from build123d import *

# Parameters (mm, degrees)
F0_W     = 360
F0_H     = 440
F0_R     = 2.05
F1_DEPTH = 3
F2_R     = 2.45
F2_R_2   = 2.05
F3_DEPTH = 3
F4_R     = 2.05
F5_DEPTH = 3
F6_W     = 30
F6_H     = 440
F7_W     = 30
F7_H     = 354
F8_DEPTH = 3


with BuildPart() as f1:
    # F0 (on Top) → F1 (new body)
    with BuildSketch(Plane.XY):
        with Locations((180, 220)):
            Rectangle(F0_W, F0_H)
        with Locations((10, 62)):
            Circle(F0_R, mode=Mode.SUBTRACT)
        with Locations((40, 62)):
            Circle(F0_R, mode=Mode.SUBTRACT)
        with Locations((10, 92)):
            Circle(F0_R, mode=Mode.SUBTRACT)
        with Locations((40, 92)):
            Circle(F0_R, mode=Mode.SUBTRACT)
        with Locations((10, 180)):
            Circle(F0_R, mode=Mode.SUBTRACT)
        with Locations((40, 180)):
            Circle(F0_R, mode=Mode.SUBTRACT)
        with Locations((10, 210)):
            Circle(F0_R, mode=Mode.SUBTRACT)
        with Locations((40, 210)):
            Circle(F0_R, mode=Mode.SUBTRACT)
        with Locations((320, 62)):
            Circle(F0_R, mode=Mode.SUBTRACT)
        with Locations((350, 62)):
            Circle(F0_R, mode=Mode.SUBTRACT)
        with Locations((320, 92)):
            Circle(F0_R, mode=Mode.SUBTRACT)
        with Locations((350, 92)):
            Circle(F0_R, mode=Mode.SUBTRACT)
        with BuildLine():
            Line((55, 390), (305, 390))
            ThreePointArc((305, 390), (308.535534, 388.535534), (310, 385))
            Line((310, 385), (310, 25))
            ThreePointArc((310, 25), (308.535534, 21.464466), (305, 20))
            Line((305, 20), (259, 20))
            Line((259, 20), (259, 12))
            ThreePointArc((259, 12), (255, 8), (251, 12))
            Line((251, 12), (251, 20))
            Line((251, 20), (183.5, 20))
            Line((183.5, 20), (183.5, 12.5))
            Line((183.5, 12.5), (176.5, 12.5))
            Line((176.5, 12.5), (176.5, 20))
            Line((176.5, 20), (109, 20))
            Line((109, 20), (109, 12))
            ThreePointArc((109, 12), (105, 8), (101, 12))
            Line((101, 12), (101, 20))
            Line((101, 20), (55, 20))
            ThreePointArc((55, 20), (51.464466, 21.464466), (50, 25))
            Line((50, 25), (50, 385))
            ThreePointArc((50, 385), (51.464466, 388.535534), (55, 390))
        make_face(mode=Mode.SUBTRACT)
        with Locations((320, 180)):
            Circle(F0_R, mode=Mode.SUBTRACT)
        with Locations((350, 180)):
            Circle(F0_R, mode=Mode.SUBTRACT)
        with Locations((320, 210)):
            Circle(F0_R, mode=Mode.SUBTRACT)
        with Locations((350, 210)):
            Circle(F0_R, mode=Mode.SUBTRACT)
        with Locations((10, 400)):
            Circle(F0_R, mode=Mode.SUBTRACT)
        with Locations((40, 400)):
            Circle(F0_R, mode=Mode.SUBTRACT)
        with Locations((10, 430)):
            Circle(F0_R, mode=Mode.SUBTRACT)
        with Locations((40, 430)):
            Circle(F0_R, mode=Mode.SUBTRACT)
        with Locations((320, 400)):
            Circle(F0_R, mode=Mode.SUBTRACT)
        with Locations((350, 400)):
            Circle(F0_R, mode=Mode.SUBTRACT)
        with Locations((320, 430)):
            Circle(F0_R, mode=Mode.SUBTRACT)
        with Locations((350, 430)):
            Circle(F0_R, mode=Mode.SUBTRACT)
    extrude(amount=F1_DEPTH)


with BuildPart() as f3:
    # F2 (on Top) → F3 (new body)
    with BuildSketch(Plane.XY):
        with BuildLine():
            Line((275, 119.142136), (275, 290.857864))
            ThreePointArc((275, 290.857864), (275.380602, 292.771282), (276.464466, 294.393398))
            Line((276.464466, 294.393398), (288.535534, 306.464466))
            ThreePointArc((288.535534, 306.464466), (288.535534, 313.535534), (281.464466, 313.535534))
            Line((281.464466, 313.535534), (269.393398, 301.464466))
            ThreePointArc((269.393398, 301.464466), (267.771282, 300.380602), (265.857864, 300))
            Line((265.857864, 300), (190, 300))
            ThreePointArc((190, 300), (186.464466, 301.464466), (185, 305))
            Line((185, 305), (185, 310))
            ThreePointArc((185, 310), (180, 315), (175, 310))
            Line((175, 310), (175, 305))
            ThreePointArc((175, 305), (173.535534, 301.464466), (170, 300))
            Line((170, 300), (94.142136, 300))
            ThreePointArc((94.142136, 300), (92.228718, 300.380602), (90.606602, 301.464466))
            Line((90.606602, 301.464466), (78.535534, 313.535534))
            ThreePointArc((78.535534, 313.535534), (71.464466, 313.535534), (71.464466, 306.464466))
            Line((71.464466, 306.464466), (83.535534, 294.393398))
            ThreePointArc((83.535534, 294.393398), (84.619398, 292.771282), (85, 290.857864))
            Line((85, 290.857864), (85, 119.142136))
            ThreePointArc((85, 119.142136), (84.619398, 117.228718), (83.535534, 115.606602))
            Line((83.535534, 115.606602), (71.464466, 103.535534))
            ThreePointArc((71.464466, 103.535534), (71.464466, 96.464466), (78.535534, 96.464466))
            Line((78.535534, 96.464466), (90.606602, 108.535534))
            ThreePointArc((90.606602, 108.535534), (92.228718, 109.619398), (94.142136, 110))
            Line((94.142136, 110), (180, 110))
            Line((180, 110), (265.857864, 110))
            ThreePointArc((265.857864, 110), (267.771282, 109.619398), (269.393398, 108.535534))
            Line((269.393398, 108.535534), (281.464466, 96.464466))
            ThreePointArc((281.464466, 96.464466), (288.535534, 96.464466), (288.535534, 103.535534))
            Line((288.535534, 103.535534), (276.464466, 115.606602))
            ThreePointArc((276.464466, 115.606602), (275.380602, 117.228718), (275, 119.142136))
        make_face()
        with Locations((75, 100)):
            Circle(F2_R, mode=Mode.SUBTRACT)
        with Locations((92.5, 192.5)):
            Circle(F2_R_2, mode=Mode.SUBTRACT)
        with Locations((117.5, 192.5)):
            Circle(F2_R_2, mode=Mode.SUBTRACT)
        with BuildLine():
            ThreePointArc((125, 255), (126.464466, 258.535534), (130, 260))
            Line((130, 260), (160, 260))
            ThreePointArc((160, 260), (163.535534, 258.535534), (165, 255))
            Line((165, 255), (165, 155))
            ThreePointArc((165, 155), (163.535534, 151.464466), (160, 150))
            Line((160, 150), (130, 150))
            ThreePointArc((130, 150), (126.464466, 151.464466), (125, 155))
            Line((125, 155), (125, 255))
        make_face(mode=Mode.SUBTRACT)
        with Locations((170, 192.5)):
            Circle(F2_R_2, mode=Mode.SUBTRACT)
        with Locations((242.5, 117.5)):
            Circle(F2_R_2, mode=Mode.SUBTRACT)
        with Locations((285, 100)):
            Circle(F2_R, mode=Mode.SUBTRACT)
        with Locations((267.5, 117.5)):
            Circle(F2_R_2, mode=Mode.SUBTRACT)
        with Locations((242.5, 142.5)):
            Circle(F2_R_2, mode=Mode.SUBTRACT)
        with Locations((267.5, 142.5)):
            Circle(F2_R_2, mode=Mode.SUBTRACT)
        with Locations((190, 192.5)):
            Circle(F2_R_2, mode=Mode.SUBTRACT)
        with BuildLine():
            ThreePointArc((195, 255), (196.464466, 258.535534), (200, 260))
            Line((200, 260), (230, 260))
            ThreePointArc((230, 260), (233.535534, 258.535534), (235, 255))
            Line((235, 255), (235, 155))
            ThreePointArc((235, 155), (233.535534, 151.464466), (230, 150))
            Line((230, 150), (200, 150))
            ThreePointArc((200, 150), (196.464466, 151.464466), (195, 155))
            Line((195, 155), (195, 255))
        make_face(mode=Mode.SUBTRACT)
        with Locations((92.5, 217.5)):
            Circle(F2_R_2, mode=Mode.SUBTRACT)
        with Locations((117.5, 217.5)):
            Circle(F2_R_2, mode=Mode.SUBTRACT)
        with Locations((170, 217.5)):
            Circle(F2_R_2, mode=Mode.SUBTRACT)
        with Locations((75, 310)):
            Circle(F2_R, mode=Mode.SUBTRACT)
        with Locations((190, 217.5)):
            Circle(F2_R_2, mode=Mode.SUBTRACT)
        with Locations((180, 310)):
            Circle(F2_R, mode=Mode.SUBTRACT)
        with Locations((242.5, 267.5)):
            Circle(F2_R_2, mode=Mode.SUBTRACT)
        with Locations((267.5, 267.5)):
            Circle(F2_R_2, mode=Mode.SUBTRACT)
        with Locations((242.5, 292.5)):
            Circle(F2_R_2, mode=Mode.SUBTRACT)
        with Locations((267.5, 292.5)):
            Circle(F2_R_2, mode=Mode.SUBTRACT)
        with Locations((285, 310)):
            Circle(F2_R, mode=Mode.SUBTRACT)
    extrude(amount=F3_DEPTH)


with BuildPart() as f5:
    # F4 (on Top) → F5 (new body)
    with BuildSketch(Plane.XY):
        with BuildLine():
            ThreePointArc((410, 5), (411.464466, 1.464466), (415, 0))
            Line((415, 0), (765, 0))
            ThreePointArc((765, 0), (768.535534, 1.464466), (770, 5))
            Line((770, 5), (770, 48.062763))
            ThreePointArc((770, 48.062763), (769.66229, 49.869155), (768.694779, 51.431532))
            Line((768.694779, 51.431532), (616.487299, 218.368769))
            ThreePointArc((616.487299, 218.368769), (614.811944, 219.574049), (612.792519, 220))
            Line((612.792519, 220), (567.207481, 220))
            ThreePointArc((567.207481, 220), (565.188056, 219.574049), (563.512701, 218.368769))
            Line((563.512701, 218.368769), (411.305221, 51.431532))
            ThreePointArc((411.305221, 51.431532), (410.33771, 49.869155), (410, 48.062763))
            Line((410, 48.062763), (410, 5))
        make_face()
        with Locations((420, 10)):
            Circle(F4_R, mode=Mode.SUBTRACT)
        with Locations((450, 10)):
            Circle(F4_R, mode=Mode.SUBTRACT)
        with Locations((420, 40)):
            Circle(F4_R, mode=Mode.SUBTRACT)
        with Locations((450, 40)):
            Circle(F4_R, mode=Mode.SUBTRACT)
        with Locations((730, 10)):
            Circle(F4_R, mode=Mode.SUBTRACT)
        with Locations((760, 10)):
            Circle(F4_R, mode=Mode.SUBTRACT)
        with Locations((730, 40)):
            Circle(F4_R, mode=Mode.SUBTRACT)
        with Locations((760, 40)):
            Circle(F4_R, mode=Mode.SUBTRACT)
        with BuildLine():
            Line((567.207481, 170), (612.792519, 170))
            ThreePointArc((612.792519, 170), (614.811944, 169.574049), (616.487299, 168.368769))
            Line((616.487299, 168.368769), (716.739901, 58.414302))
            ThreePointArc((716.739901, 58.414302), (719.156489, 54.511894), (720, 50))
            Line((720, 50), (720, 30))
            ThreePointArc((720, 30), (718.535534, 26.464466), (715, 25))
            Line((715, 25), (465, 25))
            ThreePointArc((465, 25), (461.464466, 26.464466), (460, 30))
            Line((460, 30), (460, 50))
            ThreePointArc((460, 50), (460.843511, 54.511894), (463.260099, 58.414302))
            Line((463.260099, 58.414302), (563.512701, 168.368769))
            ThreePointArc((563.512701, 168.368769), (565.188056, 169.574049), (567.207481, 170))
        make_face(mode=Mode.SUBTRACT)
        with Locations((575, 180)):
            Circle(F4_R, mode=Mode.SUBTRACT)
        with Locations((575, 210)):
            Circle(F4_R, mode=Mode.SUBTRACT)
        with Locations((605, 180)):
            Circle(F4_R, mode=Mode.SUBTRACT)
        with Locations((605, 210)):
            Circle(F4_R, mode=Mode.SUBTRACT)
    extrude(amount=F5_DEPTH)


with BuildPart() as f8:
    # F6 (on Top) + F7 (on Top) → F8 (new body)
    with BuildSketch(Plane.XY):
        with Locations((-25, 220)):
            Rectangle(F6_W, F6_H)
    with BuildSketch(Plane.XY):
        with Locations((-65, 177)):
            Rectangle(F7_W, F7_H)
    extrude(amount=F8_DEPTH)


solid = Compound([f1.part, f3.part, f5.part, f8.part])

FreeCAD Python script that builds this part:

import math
import FreeCAD as App
import Part
import Sketcher

V = App.Vector


def add_polygon(sketch, points):
    """Adds a closed chain of lines whose ends are joined by coincident constraints."""
    first, n = sketch.GeometryCount, len(points)
    for a, b in zip(points, points[1:] + points[:1]):
        sketch.addGeometry(Part.LineSegment(App.Vector(*a, 0), App.Vector(*b, 0)), False)
    for i in range(n):
        sketch.addConstraint(Sketcher.Constraint("Coincident", first + i, 2, first + (i + 1) % n, 1))

doc = App.newDocument("Part")
body = doc.addObject("PartDesign::Body", "Body")

sketch1 = body.newObject("Sketcher::SketchObject", "Sketch")
sketch1.AttachmentSupport = (doc.getObject("XY_Plane"), [""])
sketch1.MapMode = "FlatFace"
add_polygon(sketch1, [(0, 440), (0, 0), (360, 0), (360, 440)])
sketch1.addGeometry(Part.Circle(V(10, 62, 0), V(0, 0, 1), 2), False)
sketch1.addGeometry(Part.Circle(V(40, 62, 0), V(0, 0, 1), 2), False)
sketch1.addGeometry(Part.Circle(V(10, 92, 0), V(0, 0, 1), 2), False)
sketch1.addGeometry(Part.Circle(V(40, 92, 0), V(0, 0, 1), 2), False)
sketch1.addGeometry(Part.Circle(V(10, 180, 0), V(0, 0, 1), 2), False)
sketch1.addGeometry(Part.Circle(V(40, 180, 0), V(0, 0, 1), 2), False)
sketch1.addGeometry(Part.Circle(V(10, 210, 0), V(0, 0, 1), 2), False)
sketch1.addGeometry(Part.Circle(V(40, 210, 0), V(0, 0, 1), 2), False)
sketch1.addGeometry(Part.Circle(V(320, 62, 0), V(0, 0, 1), 2), False)
sketch1.addGeometry(Part.Circle(V(350, 62, 0), V(0, 0, 1), 2), False)
sketch1.addGeometry(Part.Circle(V(320, 92, 0), V(0, 0, 1), 2), False)
sketch1.addGeometry(Part.Circle(V(350, 92, 0), V(0, 0, 1), 2), False)
sketch1.addGeometry(Part.ArcOfCircle(Part.Circle(V(55, 385, 0), V(0, 0, 1), 5), math.radians(90), math.radians(180)), False)
sketch1.addGeometry(Part.LineSegment(V(55, 390, 0), V(305, 390, 0)), False)
sketch1.addGeometry(Part.ArcOfCircle(Part.Circle(V(305, 385, 0), V(0, 0, 1), 5), math.radians(0), math.radians(90)), False)
sketch1.addGeometry(Part.LineSegment(V(310, 385, 0), V(310, 25, 0)), False)
sketch1.addGeometry(Part.ArcOfCircle(Part.Circle(V(305, 25, 0), V(0, 0, 1), 5), math.radians(-90), math.radians(0)), False)
sketch1.addGeometry(Part.LineSegment(V(305, 20, 0), V(259, 20, 0)), False)
sketch1.addGeometry(Part.LineSegment(V(259, 20, 0), V(259, 12, 0)), False)
sketch1.addGeometry(Part.ArcOfCircle(Part.Circle(V(255, 12, 0), V(0, 0, 1), 4), math.radians(180), math.radians(360)), False)
sketch1.addGeometry(Part.LineSegment(V(251, 12, 0), V(251, 20, 0)), False)
sketch1.addGeometry(Part.LineSegment(V(251, 20, 0), V(183.5, 20, 0)), False)
sketch1.addGeometry(Part.LineSegment(V(183.5, 20, 0), V(183.5, 12.5, 0)), False)
sketch1.addGeometry(Part.LineSegment(V(183.5, 12.5, 0), V(176.5, 12.5, 0)), False)
sketch1.addGeometry(Part.LineSegment(V(176.5, 12.5, 0), V(176.5, 20, 0)), False)
sketch1.addGeometry(Part.LineSegment(V(176.5, 20, 0), V(109, 20, 0)), False)
sketch1.addGeometry(Part.LineSegment(V(109, 20, 0), V(109, 12, 0)), False)
sketch1.addGeometry(Part.ArcOfCircle(Part.Circle(V(105, 12, 0), V(0, 0, 1), 4), math.radians(180), math.radians(360)), False)
sketch1.addGeometry(Part.LineSegment(V(101, 12, 0), V(101, 20, 0)), False)
sketch1.addGeometry(Part.LineSegment(V(101, 20, 0), V(55, 20, 0)), False)
sketch1.addGeometry(Part.ArcOfCircle(Part.Circle(V(55, 25, 0), V(0, 0, 1), 5), math.radians(180), math.radians(270)), False)
sketch1.addGeometry(Part.LineSegment(V(50, 25, 0), V(50, 385, 0)), False)
sketch1.addGeometry(Part.Circle(V(320, 180, 0), V(0, 0, 1), 2), False)
sketch1.addGeometry(Part.Circle(V(350, 180, 0), V(0, 0, 1), 2), False)
sketch1.addGeometry(Part.Circle(V(320, 210, 0), V(0, 0, 1), 2), False)
sketch1.addGeometry(Part.Circle(V(350, 210, 0), V(0, 0, 1), 2), False)
sketch1.addGeometry(Part.Circle(V(10, 400, 0), V(0, 0, 1), 2), False)
sketch1.addGeometry(Part.Circle(V(40, 400, 0), V(0, 0, 1), 2), False)
sketch1.addGeometry(Part.Circle(V(10, 430, 0), V(0, 0, 1), 2), False)
sketch1.addGeometry(Part.Circle(V(40, 430, 0), V(0, 0, 1), 2), False)
sketch1.addGeometry(Part.Circle(V(320, 400, 0), V(0, 0, 1), 2), False)
sketch1.addGeometry(Part.Circle(V(350, 400, 0), V(0, 0, 1), 2), False)
sketch1.addGeometry(Part.Circle(V(320, 430, 0), V(0, 0, 1), 2), False)
sketch1.addGeometry(Part.Circle(V(350, 430, 0), V(0, 0, 1), 2), False)
sketch1.addConstraint(Sketcher.Constraint("Tangent", 16, 1, 17, 1))
sketch1.addConstraint(Sketcher.Constraint("Tangent", 17, 2, 18, 2))
sketch1.addConstraint(Sketcher.Constraint("Tangent", 18, 1, 19, 1))
sketch1.addConstraint(Sketcher.Constraint("Tangent", 19, 2, 20, 2))
sketch1.addConstraint(Sketcher.Constraint("Tangent", 20, 1, 21, 1))
sketch1.addConstraint(Sketcher.Constraint("Coincident", 21, 2, 22, 1))
sketch1.addConstraint(Sketcher.Constraint("Tangent", 22, 2, 23, 2))
sketch1.addConstraint(Sketcher.Constraint("Tangent", 23, 1, 24, 1))
sketch1.addConstraint(Sketcher.Constraint("Coincident", 24, 2, 25, 1))
sketch1.addConstraint(Sketcher.Constraint("Coincident", 25, 2, 26, 1))
sketch1.addConstraint(Sketcher.Constraint("Coincident", 26, 2, 27, 1))
sketch1.addConstraint(Sketcher.Constraint("Coincident", 27, 2, 28, 1))
sketch1.addConstraint(Sketcher.Constraint("Coincident", 28, 2, 29, 1))
sketch1.addConstraint(Sketcher.Constraint("Coincident", 29, 2, 30, 1))
sketch1.addConstraint(Sketcher.Constraint("Tangent", 30, 2, 31, 2))
sketch1.addConstraint(Sketcher.Constraint("Tangent", 31, 1, 32, 1))
sketch1.addConstraint(Sketcher.Constraint("Coincident", 32, 2, 33, 1))
sketch1.addConstraint(Sketcher.Constraint("Tangent", 33, 2, 34, 2))
sketch1.addConstraint(Sketcher.Constraint("Tangent", 34, 1, 35, 1))
sketch1.addConstraint(Sketcher.Constraint("Tangent", 35, 2, 16, 2))
sketch1.addConstraint(Sketcher.Constraint("Vertical", 0))
sketch1.addConstraint(Sketcher.Constraint("Horizontal", 1))
sketch1.addConstraint(Sketcher.Constraint("Vertical", 2))
sketch1.addConstraint(Sketcher.Constraint("Horizontal", 3))
sketch1.addConstraint(Sketcher.Constraint("Horizontal", 17))
sketch1.addConstraint(Sketcher.Constraint("Vertical", 19))
sketch1.addConstraint(Sketcher.Constraint("Horizontal", 21))
sketch1.addConstraint(Sketcher.Constraint("Vertical", 22))
sketch1.addConstraint(Sketcher.Constraint("Vertical", 24))
sketch1.addConstraint(Sketcher.Constraint("Horizontal", 25))
sketch1.addConstraint(Sketcher.Constraint("Vertical", 26))
sketch1.addConstraint(Sketcher.Constraint("Horizontal", 27))
sketch1.addConstraint(Sketcher.Constraint("Vertical", 28))
sketch1.addConstraint(Sketcher.Constraint("Horizontal", 29))
sketch1.addConstraint(Sketcher.Constraint("Vertical", 30))
sketch1.addConstraint(Sketcher.Constraint("Vertical", 32))
sketch1.addConstraint(Sketcher.Constraint("Horizontal", 33))
sketch1.addConstraint(Sketcher.Constraint("Vertical", 35))
sketch1.addConstraint(Sketcher.Constraint("Coincident", 0, 2, -1, 1))
sketch1.addConstraint(Sketcher.Constraint("Equal", 4, 5))
sketch1.addConstraint(Sketcher.Constraint("Equal", 5, 6))
sketch1.addConstraint(Sketcher.Constraint("Equal", 6, 7))
sketch1.addConstraint(Sketcher.Constraint("Equal", 7, 8))
sketch1.addConstraint(Sketcher.Constraint("Equal", 8, 9))
sketch1.addConstraint(Sketcher.Constraint("Equal", 9, 10))
sketch1.addConstraint(Sketcher.Constraint("Equal", 10, 11))
sketch1.addConstraint(Sketcher.Constraint("Equal", 11, 12))
sketch1.addConstraint(Sketcher.Constraint("Equal", 12, 13))
sketch1.addConstraint(Sketcher.Constraint("Equal", 13, 14))
sketch1.addConstraint(Sketcher.Constraint("Equal", 14, 15))
sketch1.addConstraint(Sketcher.Constraint("Equal", 16, 18))
sketch1.addConstraint(Sketcher.Constraint("Equal", 18, 20))
sketch1.addConstraint(Sketcher.Constraint("Equal", 23, 31))
sketch1.addConstraint(Sketcher.Constraint("Equal", 20, 34))
sketch1.addConstraint(Sketcher.Constraint("Equal", 15, 36))
sketch1.addConstraint(Sketcher.Constraint("Equal", 36, 37))
sketch1.addConstraint(Sketcher.Constraint("Equal", 37, 38))
sketch1.addConstraint(Sketcher.Constraint("Equal", 38, 39))
sketch1.addConstraint(Sketcher.Constraint("Equal", 39, 40))
sketch1.addConstraint(Sketcher.Constraint("Equal", 40, 41))
sketch1.addConstraint(Sketcher.Constraint("Equal", 41, 42))
sketch1.addConstraint(Sketcher.Constraint("Equal", 42, 43))
sketch1.addConstraint(Sketcher.Constraint("Equal", 43, 44))
sketch1.addConstraint(Sketcher.Constraint("Equal", 44, 45))
sketch1.addConstraint(Sketcher.Constraint("Equal", 45, 46))
sketch1.addConstraint(Sketcher.Constraint("Equal", 46, 47))
sketch1.addConstraint(Sketcher.Constraint("Horizontal", 4, 3, 5, 3))
sketch1.addConstraint(Sketcher.Constraint("Horizontal", 6, 3, 7, 3))
sketch1.addConstraint(Sketcher.Constraint("Horizontal", 8, 3, 9, 3))
sketch1.addConstraint(Sketcher.Constraint("Horizontal", 10, 3, 11, 3))
sketch1.addConstraint(Sketcher.Constraint("Horizontal", 5, 3, 12, 3))
sketch1.addConstraint(Sketcher.Constraint("Horizontal", 12, 3, 13, 3))
sketch1.addConstraint(Sketcher.Constraint("Horizontal", 7, 3, 14, 3))
sketch1.addConstraint(Sketcher.Constraint("Horizontal", 14, 3, 15, 3))
sketch1.addConstraint(Sketcher.Constraint("Horizontal", 23, 3, 31, 3))
sketch1.addConstraint(Sketcher.Constraint("Horizontal", 20, 3, 34, 3))
sketch1.addConstraint(Sketcher.Constraint("Horizontal", 9, 3, 36, 3))
sketch1.addConstraint(Sketcher.Constraint("Horizontal", 36, 3, 37, 3))
sketch1.addConstraint(Sketcher.Constraint("Horizontal", 11, 3, 38, 3))
sketch1.addConstraint(Sketcher.Constraint("Horizontal", 38, 3, 39, 3))
sketch1.addConstraint(Sketcher.Constraint("Horizontal", 40, 3, 41, 3))
sketch1.addConstraint(Sketcher.Constraint("Horizontal", 42, 3, 43, 3))
sketch1.addConstraint(Sketcher.Constraint("Horizontal", 41, 3, 44, 3))
sketch1.addConstraint(Sketcher.Constraint("Horizontal", 44, 3, 45, 3))
sketch1.addConstraint(Sketcher.Constraint("Horizontal", 43, 3, 46, 3))
sketch1.addConstraint(Sketcher.Constraint("Horizontal", 46, 3, 47, 3))
sketch1.addConstraint(Sketcher.Constraint("Horizontal", 21, 2, 24, 2))
sketch1.addConstraint(Sketcher.Constraint("Horizontal", 25, 2, 28, 2))
sketch1.addConstraint(Sketcher.Constraint("Vertical", 4, 3, 6, 3))
sketch1.addConstraint(Sketcher.Constraint("Vertical", 5, 3, 7, 3))
sketch1.addConstraint(Sketcher.Constraint("Vertical", 6, 3, 8, 3))
sketch1.addConstraint(Sketcher.Constraint("Vertical", 7, 3, 9, 3))
sketch1.addConstraint(Sketcher.Constraint("Vertical", 8, 3, 10, 3))
sketch1.addConstraint(Sketcher.Constraint("Vertical", 9, 3, 11, 3))
sketch1.addConstraint(Sketcher.Constraint("Vertical", 12, 3, 14, 3))
sketch1.addConstraint(Sketcher.Constraint("Vertical", 13, 3, 15, 3))
sketch1.addConstraint(Sketcher.Constraint("Vertical", 14, 3, 36, 3))
sketch1.addConstraint(Sketcher.Constraint("Vertical", 15, 3, 37, 3))
sketch1.addConstraint(Sketcher.Constraint("Vertical", 36, 3, 38, 3))
sketch1.addConstraint(Sketcher.Constraint("Vertical", 37, 3, 39, 3))
sketch1.addConstraint(Sketcher.Constraint("Vertical", 10, 3, 40, 3))
sketch1.addConstraint(Sketcher.Constraint("Vertical", 11, 3, 41, 3))
sketch1.addConstraint(Sketcher.Constraint("Vertical", 40, 3, 42, 3))
sketch1.addConstraint(Sketcher.Constraint("Vertical", 41, 3, 43, 3))
sketch1.addConstraint(Sketcher.Constraint("Vertical", 38, 3, 44, 3))
sketch1.addConstraint(Sketcher.Constraint("Vertical", 39, 3, 45, 3))
sketch1.addConstraint(Sketcher.Constraint("Vertical", 44, 3, 46, 3))
sketch1.addConstraint(Sketcher.Constraint("Vertical", 45, 3, 47, 3))
sketch1.addConstraint(Sketcher.Constraint("Equal", 25, 29))
sketch1.addConstraint(Sketcher.Constraint("Equal", 21, 33))
sketch1.addConstraint(Sketcher.Constraint("Equal", 3, 19))
sketch1.addConstraint(Sketcher.Constraint("Radius", 16, 5.0))
sketch1.addConstraint(Sketcher.Constraint("Radius", 23, 4.0))
sketch1.addConstraint(Sketcher.Constraint("Diameter", 4, 4.1))
sketch1.addConstraint(Sketcher.Constraint("DistanceX", 1, 1, 1, 2, 360.0))
sketch1.addConstraint(Sketcher.Constraint("DistanceX", 17, 1, 17, 2, 250.0))
sketch1.addConstraint(Sketcher.Constraint("DistanceX", 21, 2, 21, 1, 46.0))
sketch1.addConstraint(Sketcher.Constraint("DistanceX", 27, 2, 27, 1, 7.0))
sketch1.addConstraint(Sketcher.Constraint("DistanceY", 0, 2, 0, 1, 440.0))
sketch1.addConstraint(Sketcher.Constraint("DistanceY", 22, 2, 22, 1, 8.0))
sketch1.addConstraint(Sketcher.Constraint("DistanceY", 26, 2, 26, 1, 7.5))
sketch1.addConstraint(Sketcher.Constraint("DistanceX", -1, 1, 4, 3, 10.0))
sketch1.addConstraint(Sketcher.Constraint("DistanceY", -1, 1, 4, 3, 62.0))
sketch1.addConstraint(Sketcher.Constraint("DistanceX", -1, 1, 5, 3, 40.0))
sketch1.addConstraint(Sketcher.Constraint("DistanceY", -1, 1, 6, 3, 92.0))
sketch1.addConstraint(Sketcher.Constraint("DistanceY", -1, 1, 8, 3, 180.0))
sketch1.addConstraint(Sketcher.Constraint("DistanceY", -1, 1, 10, 3, 210.0))
sketch1.addConstraint(Sketcher.Constraint("DistanceX", -1, 1, 12, 3, 320.0))
sketch1.addConstraint(Sketcher.Constraint("DistanceX", -1, 1, 13, 3, 350.0))
sketch1.addConstraint(Sketcher.Constraint("DistanceX", -1, 1, 16, 3, 55.0))
sketch1.addConstraint(Sketcher.Constraint("DistanceY", -1, 1, 16, 3, 385.0))
sketch1.addConstraint(Sketcher.Constraint("DistanceY", -1, 1, 40, 3, 400.0))
sketch1.addConstraint(Sketcher.Constraint("DistanceY", -1, 1, 42, 3, 430.0))
pad1 = body.newObject("PartDesign::Pad", "Pad")
pad1.Profile = sketch1
pad1.Length = 3
body2 = doc.addObject("PartDesign::Body", "Body001")

sketch2 = body2.newObject("Sketcher::SketchObject", "Sketch001")
sketch2.AttachmentSupport = (doc.getObject("XY_Plane001"), [""])
sketch2.MapMode = "FlatFace"
sketch2.addGeometry(Part.LineSegment(V(275, 119.1, 0), V(275, 290.9, 0)), False)
sketch2.addGeometry(Part.ArcOfCircle(Part.Circle(V(280, 290.9, 0), V(0, 0, 1), 5), math.radians(135), math.radians(180)), False)
sketch2.addGeometry(Part.LineSegment(V(276.5, 294.4, 0), V(288.5, 306.5, 0)), False)
sketch2.addGeometry(Part.ArcOfCircle(Part.Circle(V(285, 310, 0), V(0, 0, 1), 5), math.radians(-45), math.radians(135)), False)
sketch2.addGeometry(Part.LineSegment(V(281.5, 313.5, 0), V(269.4, 301.5, 0)), False)
sketch2.addGeometry(Part.ArcOfCircle(Part.Circle(V(265.9, 305, 0), V(0, 0, 1), 5), math.radians(-90), math.radians(-45)), False)
sketch2.addGeometry(Part.LineSegment(V(265.9, 300, 0), V(190, 300, 0)), False)
sketch2.addGeometry(Part.ArcOfCircle(Part.Circle(V(190, 305, 0), V(0, 0, 1), 5), math.radians(180), math.radians(270)), False)
sketch2.addGeometry(Part.LineSegment(V(185, 305, 0), V(185, 310, 0)), False)
sketch2.addGeometry(Part.ArcOfCircle(Part.Circle(V(180, 310, 0), V(0, 0, 1), 5), math.radians(0), math.radians(180)), False)
sketch2.addGeometry(Part.LineSegment(V(175, 310, 0), V(175, 305, 0)), False)
sketch2.addGeometry(Part.ArcOfCircle(Part.Circle(V(170, 305, 0), V(0, 0, 1), 5), math.radians(-90), math.radians(0)), False)
sketch2.addGeometry(Part.LineSegment(V(170, 300, 0), V(94.1, 300, 0)), False)
sketch2.addGeometry(Part.ArcOfCircle(Part.Circle(V(94.1, 305, 0), V(0, 0, 1), 5), math.radians(-135), math.radians(-90)), False)
sketch2.addGeometry(Part.LineSegment(V(90.6, 301.5, 0), V(78.5, 313.5, 0)), False)
sketch2.addGeometry(Part.ArcOfCircle(Part.Circle(V(75, 310, 0), V(0, 0, 1), 5), math.radians(45), math.radians(225)), False)
sketch2.addGeometry(Part.LineSegment(V(71.5, 306.5, 0), V(83.5, 294.4, 0)), False)
sketch2.addGeometry(Part.ArcOfCircle(Part.Circle(V(80, 290.9, 0), V(0, 0, 1), 5), math.radians(0), math.radians(45)), False)
sketch2.addGeometry(Part.LineSegment(V(85, 290.9, 0), V(85, 119.1, 0)), False)
sketch2.addGeometry(Part.ArcOfCircle(Part.Circle(V(80, 119.1, 0), V(0, 0, 1), 5), math.radians(-45), math.radians(0)), False)
sketch2.addGeometry(Part.LineSegment(V(83.5, 115.6, 0), V(71.5, 103.5, 0)), False)
sketch2.addGeometry(Part.ArcOfCircle(Part.Circle(V(75, 100, 0), V(0, 0, 1), 5), math.radians(135), math.radians(315)), False)
sketch2.addGeometry(Part.LineSegment(V(78.5, 96.5, 0), V(90.6, 108.5, 0)), False)
sketch2.addGeometry(Part.ArcOfCircle(Part.Circle(V(94.1, 105, 0), V(0, 0, 1), 5), math.radians(90), math.radians(135)), False)
sketch2.addGeometry(Part.LineSegment(V(94.1, 110, 0), V(265.9, 110, 0)), False)
sketch2.addGeometry(Part.ArcOfCircle(Part.Circle(V(265.9, 105, 0), V(0, 0, 1), 5), math.radians(45), math.radians(90)), False)
sketch2.addGeometry(Part.LineSegment(V(269.4, 108.5, 0), V(281.5, 96.5, 0)), False)
sketch2.addGeometry(Part.ArcOfCircle(Part.Circle(V(285, 100, 0), V(0, 0, 1), 5), math.radians(-135), math.radians(45)), False)
sketch2.addGeometry(Part.LineSegment(V(288.5, 103.5, 0), V(276.5, 115.6, 0)), False)
sketch2.addGeometry(Part.ArcOfCircle(Part.Circle(V(280, 119.1, 0), V(0, 0, 1), 5), math.radians(180), math.radians(225)), False)
sketch2.addGeometry(Part.Circle(V(75, 100, 0), V(0, 0, 1), 2.5), False)
sketch2.addGeometry(Part.Circle(V(92.5, 192.5, 0), V(0, 0, 1), 2), False)
sketch2.addGeometry(Part.Circle(V(117.5, 192.5, 0), V(0, 0, 1), 2), False)
sketch2.addGeometry(Part.Circle(V(170, 192.5, 0), V(0, 0, 1), 2), False)
sketch2.addGeometry(Part.Circle(V(242.5, 117.5, 0), V(0, 0, 1), 2), False)
sketch2.addGeometry(Part.Circle(V(285, 100, 0), V(0, 0, 1), 2.5), False)
sketch2.addGeometry(Part.Circle(V(267.5, 117.5, 0), V(0, 0, 1), 2), False)
sketch2.addGeometry(Part.Circle(V(242.5, 142.5, 0), V(0, 0, 1), 2), False)
sketch2.addGeometry(Part.Circle(V(267.5, 142.5, 0), V(0, 0, 1), 2), False)
sketch2.addGeometry(Part.Circle(V(190, 192.5, 0), V(0, 0, 1), 2), False)
sketch2.addGeometry(Part.Circle(V(92.5, 217.5, 0), V(0, 0, 1), 2), False)
sketch2.addGeometry(Part.Circle(V(117.5, 217.5, 0), V(0, 0, 1), 2), False)
sketch2.addGeometry(Part.LineSegment(V(125, 155, 0), V(125, 255, 0)), False)
sketch2.addGeometry(Part.ArcOfCircle(Part.Circle(V(130, 255, 0), V(0, 0, 1), 5), math.radians(90), math.radians(180)), False)
sketch2.addGeometry(Part.LineSegment(V(130, 260, 0), V(160, 260, 0)), False)
sketch2.addGeometry(Part.ArcOfCircle(Part.Circle(V(160, 255, 0), V(0, 0, 1), 5), math.radians(0), math.radians(90)), False)
sketch2.addGeometry(Part.LineSegment(V(165, 255, 0), V(165, 155, 0)), False)
sketch2.addGeometry(Part.ArcOfCircle(Part.Circle(V(160, 155, 0), V(0, 0, 1), 5), math.radians(-90), math.radians(0)), False)
sketch2.addGeometry(Part.LineSegment(V(160, 150, 0), V(130, 150, 0)), False)
sketch2.addGeometry(Part.ArcOfCircle(Part.Circle(V(130, 155, 0), V(0, 0, 1), 5), math.radians(180), math.radians(270)), False)
sketch2.addGeometry(Part.Circle(V(170, 217.5, 0), V(0, 0, 1), 2), False)
sketch2.addGeometry(Part.Circle(V(75, 310, 0), V(0, 0, 1), 2.5), False)
sketch2.addGeometry(Part.Circle(V(190, 217.5, 0), V(0, 0, 1), 2), False)
sketch2.addGeometry(Part.LineSegment(V(195, 155, 0), V(195, 255, 0)), False)
sketch2.addGeometry(Part.ArcOfCircle(Part.Circle(V(200, 255, 0), V(0, 0, 1), 5), math.radians(90), math.radians(180)), False)
sketch2.addGeometry(Part.LineSegment(V(200, 260, 0), V(230, 260, 0)), False)
sketch2.addGeometry(Part.ArcOfCircle(Part.Circle(V(230, 255, 0), V(0, 0, 1), 5), math.radians(0), math.radians(90)), False)
sketch2.addGeometry(Part.LineSegment(V(235, 255, 0), V(235, 155, 0)), False)
sketch2.addGeometry(Part.ArcOfCircle(Part.Circle(V(230, 155, 0), V(0, 0, 1), 5), math.radians(-90), math.radians(0)), False)
sketch2.addGeometry(Part.LineSegment(V(230, 150, 0), V(200, 150, 0)), False)
sketch2.addGeometry(Part.ArcOfCircle(Part.Circle(V(200, 155, 0), V(0, 0, 1), 5), math.radians(180), math.radians(270)), False)
sketch2.addGeometry(Part.Circle(V(180, 310, 0), V(0, 0, 1), 2.5), False)
sketch2.addGeometry(Part.Circle(V(242.5, 267.5, 0), V(0, 0, 1), 2), False)
sketch2.addGeometry(Part.Circle(V(267.5, 267.5, 0), V(0, 0, 1), 2), False)
sketch2.addGeometry(Part.Circle(V(242.5, 292.5, 0), V(0, 0, 1), 2), False)
sketch2.addGeometry(Part.Circle(V(267.5, 292.5, 0), V(0, 0, 1), 2), False)
sketch2.addGeometry(Part.Circle(V(285, 310, 0), V(0, 0, 1), 2.5), False)
sketch2.addConstraint(Sketcher.Constraint("Tangent", 0, 2, 1, 2))
sketch2.addConstraint(Sketcher.Constraint("Tangent", 1, 1, 2, 1))
sketch2.addConstraint(Sketcher.Constraint("Tangent", 2, 2, 3, 1))
sketch2.addConstraint(Sketcher.Constraint("Tangent", 3, 2, 4, 1))
sketch2.addConstraint(Sketcher.Constraint("Tangent", 4, 2, 5, 2))
sketch2.addConstraint(Sketcher.Constraint("Tangent", 5, 1, 6, 1))
sketch2.addConstraint(Sketcher.Constraint("Tangent", 6, 2, 7, 2))
sketch2.addConstraint(Sketcher.Constraint("Tangent", 7, 1, 8, 1))
sketch2.addConstraint(Sketcher.Constraint("Tangent", 8, 2, 9, 1))
sketch2.addConstraint(Sketcher.Constraint("Tangent", 9, 2, 10, 1))
sketch2.addConstraint(Sketcher.Constraint("Tangent", 10, 2, 11, 2))
sketch2.addConstraint(Sketcher.Constraint("Tangent", 11, 1, 12, 1))
sketch2.addConstraint(Sketcher.Constraint("Tangent", 12, 2, 13, 2))
sketch2.addConstraint(Sketcher.Constraint("Tangent", 13, 1, 14, 1))
sketch2.addConstraint(Sketcher.Constraint("Tangent", 14, 2, 15, 1))
sketch2.addConstraint(Sketcher.Constraint("Tangent", 15, 2, 16, 1))
sketch2.addConstraint(Sketcher.Constraint("Tangent", 16, 2, 17, 2))
sketch2.addConstraint(Sketcher.Constraint("Tangent", 17, 1, 18, 1))
sketch2.addConstraint(Sketcher.Constraint("Tangent", 18, 2, 19, 2))
sketch2.addConstraint(Sketcher.Constraint("Tangent", 19, 1, 20, 1))
sketch2.addConstraint(Sketcher.Constraint("Tangent", 20, 2, 21, 1))
sketch2.addConstraint(Sketcher.Constraint("Tangent", 21, 2, 22, 1))
sketch2.addConstraint(Sketcher.Constraint("Tangent", 22, 2, 23, 2))
sketch2.addConstraint(Sketcher.Constraint("Tangent", 23, 1, 24, 1))
sketch2.addConstraint(Sketcher.Constraint("Tangent", 24, 2, 25, 2))
sketch2.addConstraint(Sketcher.Constraint("Tangent", 25, 1, 26, 1))
sketch2.addConstraint(Sketcher.Constraint("Tangent", 26, 2, 27, 1))
sketch2.addConstraint(Sketcher.Constraint("Tangent", 27, 2, 28, 1))
sketch2.addConstraint(Sketcher.Constraint("Tangent", 28, 2, 29, 2))
sketch2.addConstraint(Sketcher.Constraint("Tangent", 29, 1, 0, 1))
sketch2.addConstraint(Sketcher.Constraint("Tangent", 42, 2, 43, 2))
sketch2.addConstraint(Sketcher.Constraint("Tangent", 43, 1, 44, 1))
sketch2.addConstraint(Sketcher.Constraint("Tangent", 44, 2, 45, 2))
sketch2.addConstraint(Sketcher.Constraint("Tangent", 45, 1, 46, 1))
sketch2.addConstraint(Sketcher.Constraint("Tangent", 46, 2, 47, 2))
sketch2.addConstraint(Sketcher.Constraint("Tangent", 47, 1, 48, 1))
sketch2.addConstraint(Sketcher.Constraint("Tangent", 48, 2, 49, 2))
sketch2.addConstraint(Sketcher.Constraint("Tangent", 49, 1, 42, 1))
sketch2.addConstraint(Sketcher.Constraint("Tangent", 53, 2, 54, 2))
sketch2.addConstraint(Sketcher.Constraint("Tangent", 54, 1, 55, 1))
sketch2.addConstraint(Sketcher.Constraint("Tangent", 55, 2, 56, 2))
sketch2.addConstraint(Sketcher.Constraint("Tangent", 56, 1, 57, 1))
sketch2.addConstraint(Sketcher.Constraint("Tangent", 57, 2, 58, 2))
sketch2.addConstraint(Sketcher.Constraint("Tangent", 58, 1, 59, 1))
sketch2.addConstraint(Sketcher.Constraint("Tangent", 59, 2, 60, 2))
sketch2.addConstraint(Sketcher.Constraint("Tangent", 60, 1, 53, 1))
sketch2.addConstraint(Sketcher.Constraint("Vertical", 0))
sketch2.addConstraint(Sketcher.Constraint("Horizontal", 6))
sketch2.addConstraint(Sketcher.Constraint("Vertical", 8))
sketch2.addConstraint(Sketcher.Constraint("Vertical", 10))
sketch2.addConstraint(Sketcher.Constraint("Horizontal", 12))
sketch2.addConstraint(Sketcher.Constraint("Vertical", 18))
sketch2.addConstraint(Sketcher.Constraint("Horizontal", 24))
sketch2.addConstraint(Sketcher.Constraint("Vertical", 42))
sketch2.addConstraint(Sketcher.Constraint("Horizontal", 44))
sketch2.addConstraint(Sketcher.Constraint("Vertical", 46))
sketch2.addConstraint(Sketcher.Constraint("Horizontal", 48))
sketch2.addConstraint(Sketcher.Constraint("Vertical", 53))
sketch2.addConstraint(Sketcher.Constraint("Horizontal", 55))
sketch2.addConstraint(Sketcher.Constraint("Vertical", 57))
sketch2.addConstraint(Sketcher.Constraint("Horizontal", 59))
sketch2.addConstraint(Sketcher.Constraint("Coincident", 30, 3, 21, 3))
sketch2.addConstraint(Sketcher.Constraint("Coincident", 35, 3, 27, 3))
sketch2.addConstraint(Sketcher.Constraint("Coincident", 51, 3, 15, 3))
sketch2.addConstraint(Sketcher.Constraint("Coincident", 61, 3, 9, 3))
sketch2.addConstraint(Sketcher.Constraint("Coincident", 66, 3, 3, 3))
sketch2.addConstraint(Sketcher.Constraint("Equal", 1, 5))
sketch2.addConstraint(Sketcher.Constraint("Equal", 3, 7))
sketch2.addConstraint(Sketcher.Constraint("Equal", 7, 9))
sketch2.addConstraint(Sketcher.Constraint("Equal", 9, 11))
sketch2.addConstraint(Sketcher.Constraint("Equal", 5, 13))
sketch2.addConstraint(Sketcher.Constraint("Equal", 11, 15))
sketch2.addConstraint(Sketcher.Constraint("Equal", 13, 17))
sketch2.addConstraint(Sketcher.Constraint("Equal", 17, 19))
sketch2.addConstraint(Sketcher.Constraint("Equal", 15, 21))
sketch2.addConstraint(Sketcher.Constraint("Equal", 19, 23))
sketch2.addConstraint(Sketcher.Constraint("Equal", 23, 25))
sketch2.addConstraint(Sketcher.Constraint("Equal", 21, 27))
sketch2.addConstraint(Sketcher.Constraint("Equal", 25, 29))
sketch2.addConstraint(Sketcher.Constraint("Equal", 31, 32))
sketch2.addConstraint(Sketcher.Constraint("Equal", 32, 33))
sketch2.addConstraint(Sketcher.Constraint("Equal", 33, 34))
sketch2.addConstraint(Sketcher.Constraint("Equal", 30, 35))
sketch2.addConstraint(Sketcher.Constraint("Equal", 34, 36))
sketch2.addConstraint(Sketcher.Constraint("Equal", 36, 37))
sketch2.addConstraint(Sketcher.Constraint("Equal", 37, 38))
sketch2.addConstraint(Sketcher.Constraint("Equal", 38, 39))
sketch2.addConstraint(Sketcher.Constraint("Equal", 39, 40))
sketch2.addConstraint(Sketcher.Constraint("Equal", 40, 41))
sketch2.addConstraint(Sketcher.Constraint("Equal", 27, 43))
sketch2.addConstraint(Sketcher.Constraint("Equal", 43, 45))
sketch2.addConstraint(Sketcher.Constraint("Equal", 45, 47))
sketch2.addConstraint(Sketcher.Constraint("Equal", 47, 49))
sketch2.addConstraint(Sketcher.Constraint("Equal", 41, 50))
sketch2.addConstraint(Sketcher.Constraint("Equal", 35, 51))
sketch2.addConstraint(Sketcher.Constraint("Equal", 50, 52))
sketch2.addConstraint(Sketcher.Constraint("Equal", 49, 54))
sketch2.addConstraint(Sketcher.Constraint("Equal", 54, 56))
sketch2.addConstraint(Sketcher.Constraint("Equal", 56, 58))
sketch2.addConstraint(Sketcher.Constraint("Equal", 58, 60))
sketch2.addConstraint(Sketcher.Constraint("Equal", 51, 61))
sketch2.addConstraint(Sketcher.Constraint("Equal", 52, 62))
sketch2.addConstraint(Sketcher.Constraint("Equal", 62, 63))
sketch2.addConstraint(Sketcher.Constraint("Equal", 63, 64))
sketch2.addConstraint(Sketcher.Constraint("Equal", 64, 65))
sketch2.addConstraint(Sketcher.Constraint("Equal", 61, 66))
sketch2.addConstraint(Sketcher.Constraint("Parallel", 2, 4))
sketch2.addConstraint(Sketcher.Constraint("Perpendicular", 4, 14))
sketch2.addConstraint(Sketcher.Constraint("Parallel", 14, 16))
sketch2.addConstraint(Sketcher.Constraint("Perpendicular", 16, 20))
sketch2.addConstraint(Sketcher.Constraint("Parallel", 20, 22))
sketch2.addConstraint(Sketcher.Constraint("Perpendicular", 22, 26))
sketch2.addConstraint(Sketcher.Constraint("Parallel", 26, 28))
sketch2.addConstraint(Sketcher.Constraint("Horizontal", 3, 3, 9, 3))
sketch2.addConstraint(Sketcher.Constraint("Horizontal", 7, 3, 11, 3))
sketch2.addConstraint(Sketcher.Constraint("Horizontal", 9, 3, 15, 3))
sketch2.addConstraint(Sketcher.Constraint("Horizontal", 1, 3, 17, 3))
sketch2.addConstraint(Sketcher.Constraint("Horizontal", 21, 3, 27, 3))
sketch2.addConstraint(Sketcher.Constraint("Horizontal", 19, 3, 29, 3))
sketch2.addConstraint(Sketcher.Constraint("Horizontal", 31, 3, 32, 3))
sketch2.addConstraint(Sketcher.Constraint("Horizontal", 32, 3, 33, 3))
sketch2.addConstraint(Sketcher.Constraint("Horizontal", 34, 3, 36, 3))
sketch2.addConstraint(Sketcher.Constraint("Horizontal", 37, 3, 38, 3))
sketch2.addConstraint(Sketcher.Constraint("Horizontal", 33, 3, 39, 3))
sketch2.addConstraint(Sketcher.Constraint("Horizontal", 40, 3, 41, 3))
sketch2.addConstraint(Sketcher.Constraint("Horizontal", 41, 3, 50, 3))
sketch2.addConstraint(Sketcher.Constraint("Horizontal", 50, 3, 52, 3))
sketch2.addConstraint(Sketcher.Constraint("Horizontal", 45, 3, 54, 3))
sketch2.addConstraint(Sketcher.Constraint("Horizontal", 49, 3, 58, 3))
sketch2.addConstraint(Sketcher.Constraint("Horizontal", 62, 3, 63, 3))
sketch2.addConstraint(Sketcher.Constraint("Horizontal", 64, 3, 65, 3))
sketch2.addConstraint(Sketcher.Constraint("Horizontal", 4, 2, 13, 1))
sketch2.addConstraint(Sketcher.Constraint("Vertical", 15, 3, 21, 3))
sketch2.addConstraint(Sketcher.Constraint("Vertical", 13, 3, 23, 3))
sketch2.addConstraint(Sketcher.Constraint("Vertical", 11, 3, 33, 3))
sketch2.addConstraint(Sketcher.Constraint("Vertical", 34, 3, 37, 3))
sketch2.addConstraint(Sketcher.Constraint("Vertical", 36, 3, 38, 3))
sketch2.addConstraint(Sketcher.Constraint("Vertical", 7, 3, 39, 3))
sketch2.addConstraint(Sketcher.Constraint("Vertical", 31, 3, 40, 3))
sketch2.addConstraint(Sketcher.Constraint("Vertical", 32, 3, 41, 3))
sketch2.addConstraint(Sketcher.Constraint("Vertical", 33, 3, 50, 3))
sketch2.addConstraint(Sketcher.Constraint("Vertical", 39, 3, 52, 3))
sketch2.addConstraint(Sketcher.Constraint("Vertical", 37, 3, 62, 3))
sketch2.addConstraint(Sketcher.Constraint("Vertical", 38, 3, 63, 3))
sketch2.addConstraint(Sketcher.Constraint("Vertical", 62, 3, 64, 3))
sketch2.addConstraint(Sketcher.Constraint("Vertical", 63, 3, 65, 3))
sketch2.addConstraint(Sketcher.Constraint("Equal", 6, 12))
sketch2.addConstraint(Sketcher.Constraint("Equal", 48, 55))
sketch2.addConstraint(Sketcher.Constraint("Equal", 24, 0))
sketch2.addConstraint(Sketcher.Constraint("Equal", 2, 4))
sketch2.addConstraint(Sketcher.Constraint("Radius", 3, 5.0))
sketch2.addConstraint(Sketcher.Constraint("Diameter", 30, 4.9))
sketch2.addConstraint(Sketcher.Constraint("Diameter", 31, 4.1))
sketch2.addConstraint(Sketcher.Constraint("DistanceX", 44, 1, 44, 2, 30.0))
sketch2.addConstraint(Sketcher.Constraint("DistanceY", 8, 1, 8, 2, 5.0))
sketch2.addConstraint(Sketcher.Constraint("DistanceY", 42, 1, 42, 2, 100.0))
sketch2.addConstraint(Sketcher.Constraint("DistanceX", -1, 1, 3, 3, 285.0))
sketch2.addConstraint(Sketcher.Constraint("DistanceY", -1, 1, 3, 3, 310.0))
sketch2.addConstraint(Sketcher.Constraint("DistanceX", -1, 1, 7, 3, 190.0))
sketch2.addConstraint(Sketcher.Constraint("DistanceX", -1, 1, 43, 3, 130.0))
sketch2.addConstraint(Sketcher.Constraint("DistanceY", -1, 1, 43, 3, 255.0))
sketch2.addConstraint(Sketcher.Constraint("DistanceX", -1, 1, 54, 3, 200.0))
sketch2.addConstraint(Sketcher.Constraint("DistanceX", -1, 1, 31, 3, 92.5))
sketch2.addConstraint(Sketcher.Constraint("DistanceY", -1, 1, 31, 3, 192.5))
sketch2.addConstraint(Sketcher.Constraint("DistanceX", -1, 1, 32, 3, 117.5))
sketch2.addConstraint(Sketcher.Constraint("DistanceX", -1, 1, 34, 3, 242.5))
sketch2.addConstraint(Sketcher.Constraint("DistanceY", -1, 1, 34, 3, 117.5))
sketch2.addConstraint(Sketcher.Constraint("DistanceX", -1, 1, 36, 3, 267.5))
sketch2.addConstraint(Sketcher.Constraint("DistanceY", -1, 1, 37, 3, 142.5))
sketch2.addConstraint(Sketcher.Constraint("DistanceY", -1, 1, 40, 3, 217.5))
sketch2.addConstraint(Sketcher.Constraint("DistanceY", -1, 1, 62, 3, 267.5))
sketch2.addConstraint(Sketcher.Constraint("DistanceY", -1, 1, 64, 3, 292.5))
sketch2.addConstraint(Sketcher.Constraint("Radius", 1, 4.999993))
pad2 = body2.newObject("PartDesign::Pad", "Pad001")
pad2.Profile = sketch2
pad2.Length = 3
body3 = doc.addObject("PartDesign::Body", "Body002")

sketch3 = body3.newObject("Sketcher::SketchObject", "Sketch002")
sketch3.AttachmentSupport = (doc.getObject("XY_Plane002"), [""])
sketch3.MapMode = "FlatFace"
sketch3.addGeometry(Part.ArcOfCircle(Part.Circle(V(415, 5, 0), V(0, 0, 1), 5), math.radians(180), math.radians(270)), False)
sketch3.addGeometry(Part.LineSegment(V(415, 0, 0), V(765, 0, 0)), False)
sketch3.addGeometry(Part.ArcOfCircle(Part.Circle(V(765, 5, 0), V(0, 0, 1), 5), math.radians(-90), math.radians(0)), False)
sketch3.addGeometry(Part.LineSegment(V(770, 5, 0), V(770, 48.1, 0)), False)
sketch3.addGeometry(Part.ArcOfCircle(Part.Circle(V(765, 48.1, 0), V(0, 0, 1), 5), math.radians(0), math.radians(42)), False)
sketch3.addGeometry(Part.LineSegment(V(768.7, 51.4, 0), V(616.5, 218.4, 0)), False)
sketch3.addGeometry(Part.ArcOfCircle(Part.Circle(V(612.8, 215, 0), V(0, 0, 1), 5), math.radians(42), math.radians(90)), False)
sketch3.addGeometry(Part.LineSegment(V(612.8, 220, 0), V(567.2, 220, 0)), False)
sketch3.addGeometry(Part.ArcOfCircle(Part.Circle(V(567.2, 215, 0), V(0, 0, 1), 5), math.radians(90), math.radians(138)), False)
sketch3.addGeometry(Part.LineSegment(V(563.5, 218.4, 0), V(411.3, 51.4, 0)), False)
sketch3.addGeometry(Part.ArcOfCircle(Part.Circle(V(415, 48.1, 0), V(0, 0, 1), 5), math.radians(138), math.radians(180)), False)
sketch3.addGeometry(Part.LineSegment(V(410, 48.1, 0), V(410, 5, 0)), False)
sketch3.addGeometry(Part.Circle(V(420, 10, 0), V(0, 0, 1), 2), False)
sketch3.addGeometry(Part.Circle(V(450, 10, 0), V(0, 0, 1), 2), False)
sketch3.addGeometry(Part.Circle(V(420, 40, 0), V(0, 0, 1), 2), False)
sketch3.addGeometry(Part.Circle(V(450, 40, 0), V(0, 0, 1), 2), False)
sketch3.addGeometry(Part.Circle(V(730, 10, 0), V(0, 0, 1), 2), False)
sketch3.addGeometry(Part.Circle(V(760, 10, 0), V(0, 0, 1), 2), False)
sketch3.addGeometry(Part.Circle(V(730, 40, 0), V(0, 0, 1), 2), False)
sketch3.addGeometry(Part.Circle(V(760, 40, 0), V(0, 0, 1), 2), False)
sketch3.addGeometry(Part.ArcOfCircle(Part.Circle(V(567.2, 165, 0), V(0, 0, 1), 5), math.radians(90), math.radians(138)), False)
sketch3.addGeometry(Part.LineSegment(V(567.2, 170, 0), V(612.8, 170, 0)), False)
sketch3.addGeometry(Part.ArcOfCircle(Part.Circle(V(612.8, 165, 0), V(0, 0, 1), 5), math.radians(42), math.radians(90)), False)
sketch3.addGeometry(Part.LineSegment(V(616.5, 168.4, 0), V(716.7, 58.4, 0)), False)
sketch3.addGeometry(Part.ArcOfCircle(Part.Circle(V(707.5, 50, 0), V(0, 0, 1), 12.5), math.radians(0), math.radians(42)), False)
sketch3.addGeometry(Part.LineSegment(V(720, 50, 0), V(720, 30, 0)), False)
sketch3.addGeometry(Part.ArcOfCircle(Part.Circle(V(715, 30, 0), V(0, 0, 1), 5), math.radians(-90), math.radians(0)), False)
sketch3.addGeometry(Part.LineSegment(V(715, 25, 0), V(465, 25, 0)), False)
sketch3.addGeometry(Part.ArcOfCircle(Part.Circle(V(465, 30, 0), V(0, 0, 1), 5), math.radians(180), math.radians(270)), False)
sketch3.addGeometry(Part.LineSegment(V(460, 30, 0), V(460, 50, 0)), False)
sketch3.addGeometry(Part.ArcOfCircle(Part.Circle(V(472.5, 50, 0), V(0, 0, 1), 12.5), math.radians(138), math.radians(180)), False)
sketch3.addGeometry(Part.LineSegment(V(463.3, 58.4, 0), V(563.5, 168.4, 0)), False)
sketch3.addGeometry(Part.Circle(V(575, 180, 0), V(0, 0, 1), 2), False)
sketch3.addGeometry(Part.Circle(V(575, 210, 0), V(0, 0, 1), 2), False)
sketch3.addGeometry(Part.Circle(V(605, 180, 0), V(0, 0, 1), 2), False)
sketch3.addGeometry(Part.Circle(V(605, 210, 0), V(0, 0, 1), 2), False)
sketch3.addConstraint(Sketcher.Constraint("Tangent", 0, 2, 1, 1))
sketch3.addConstraint(Sketcher.Constraint("Tangent", 1, 2, 2, 1))
sketch3.addConstraint(Sketcher.Constraint("Tangent", 2, 2, 3, 1))
sketch3.addConstraint(Sketcher.Constraint("Tangent", 3, 2, 4, 1))
sketch3.addConstraint(Sketcher.Constraint("Tangent", 4, 2, 5, 1))
sketch3.addConstraint(Sketcher.Constraint("Tangent", 5, 2, 6, 1))
sketch3.addConstraint(Sketcher.Constraint("Tangent", 6, 2, 7, 1))
sketch3.addConstraint(Sketcher.Constraint("Tangent", 7, 2, 8, 1))
sketch3.addConstraint(Sketcher.Constraint("Tangent", 8, 2, 9, 1))
sketch3.addConstraint(Sketcher.Constraint("Tangent", 9, 2, 10, 1))
sketch3.addConstraint(Sketcher.Constraint("Tangent", 10, 2, 11, 1))
sketch3.addConstraint(Sketcher.Constraint("Tangent", 11, 2, 0, 1))
sketch3.addConstraint(Sketcher.Constraint("Tangent", 20, 1, 21, 1))
sketch3.addConstraint(Sketcher.Constraint("Tangent", 21, 2, 22, 2))
sketch3.addConstraint(Sketcher.Constraint("Tangent", 22, 1, 23, 1))
sketch3.addConstraint(Sketcher.Constraint("Tangent", 23, 2, 24, 2))
sketch3.addConstraint(Sketcher.Constraint("Tangent", 24, 1, 25, 1))
sketch3.addConstraint(Sketcher.Constraint("Tangent", 25, 2, 26, 2))
sketch3.addConstraint(Sketcher.Constraint("Tangent", 26, 1, 27, 1))
sketch3.addConstraint(Sketcher.Constraint("Tangent", 27, 2, 28, 2))
sketch3.addConstraint(Sketcher.Constraint("Tangent", 28, 1, 29, 1))
sketch3.addConstraint(Sketcher.Constraint("Tangent", 29, 2, 30, 2))
sketch3.addConstraint(Sketcher.Constraint("Tangent", 30, 1, 31, 1))
sketch3.addConstraint(Sketcher.Constraint("Tangent", 31, 2, 20, 2))
sketch3.addConstraint(Sketcher.Constraint("Horizontal", 1))
sketch3.addConstraint(Sketcher.Constraint("Vertical", 3))
sketch3.addConstraint(Sketcher.Constraint("Horizontal", 7))
sketch3.addConstraint(Sketcher.Constraint("Vertical", 11))
sketch3.addConstraint(Sketcher.Constraint("Horizontal", 21))
sketch3.addConstraint(Sketcher.Constraint("Vertical", 25))
sketch3.addConstraint(Sketcher.Constraint("Horizontal", 27))
sketch3.addConstraint(Sketcher.Constraint("Vertical", 29))
sketch3.addConstraint(Sketcher.Constraint("Equal", 0, 2))
sketch3.addConstraint(Sketcher.Constraint("Equal", 2, 6))
sketch3.addConstraint(Sketcher.Constraint("Equal", 6, 8))
sketch3.addConstraint(Sketcher.Constraint("Equal", 4, 10))
sketch3.addConstraint(Sketcher.Constraint("Equal", 12, 13))
sketch3.addConstraint(Sketcher.Constraint("Equal", 13, 14))
sketch3.addConstraint(Sketcher.Constraint("Equal", 14, 15))
sketch3.addConstraint(Sketcher.Constraint("Equal", 15, 16))
sketch3.addConstraint(Sketcher.Constraint("Equal", 16, 17))
sketch3.addConstraint(Sketcher.Constraint("Equal", 17, 18))
sketch3.addConstraint(Sketcher.Constraint("Equal", 18, 19))
sketch3.addConstraint(Sketcher.Constraint("Equal", 8, 20))
sketch3.addConstraint(Sketcher.Constraint("Equal", 20, 22))
sketch3.addConstraint(Sketcher.Constraint("Equal", 22, 26))
sketch3.addConstraint(Sketcher.Constraint("Equal", 26, 28))
sketch3.addConstraint(Sketcher.Constraint("Equal", 24, 30))
sketch3.addConstraint(Sketcher.Constraint("Equal", 19, 32))
sketch3.addConstraint(Sketcher.Constraint("Equal", 32, 33))
sketch3.addConstraint(Sketcher.Constraint("Equal", 33, 34))
sketch3.addConstraint(Sketcher.Constraint("Equal", 34, 35))
sketch3.addConstraint(Sketcher.Constraint("PointOnObject", 0, 2, -1))
sketch3.addConstraint(Sketcher.Constraint("Parallel", 5, 23))
sketch3.addConstraint(Sketcher.Constraint("Parallel", 9, 31))
sketch3.addConstraint(Sketcher.Constraint("Horizontal", 4, 3, 10, 3))
sketch3.addConstraint(Sketcher.Constraint("Horizontal", 12, 3, 13, 3))
sketch3.addConstraint(Sketcher.Constraint("Horizontal", 14, 3, 15, 3))
sketch3.addConstraint(Sketcher.Constraint("Horizontal", 13, 3, 16, 3))
sketch3.addConstraint(Sketcher.Constraint("Horizontal", 16, 3, 17, 3))
sketch3.addConstraint(Sketcher.Constraint("Horizontal", 15, 3, 18, 3))
sketch3.addConstraint(Sketcher.Constraint("Horizontal", 18, 3, 19, 3))
sketch3.addConstraint(Sketcher.Constraint("Horizontal", 24, 3, 30, 3))
sketch3.addConstraint(Sketcher.Constraint("Horizontal", 32, 3, 34, 3))
sketch3.addConstraint(Sketcher.Constraint("Horizontal", 33, 3, 35, 3))
sketch3.addConstraint(Sketcher.Constraint("Horizontal", 5, 2, 8, 2))
sketch3.addConstraint(Sketcher.Constraint("Vertical", 12, 3, 14, 3))
sketch3.addConstraint(Sketcher.Constraint("Vertical", 13, 3, 15, 3))
sketch3.addConstraint(Sketcher.Constraint("Vertical", 16, 3, 18, 3))
sketch3.addConstraint(Sketcher.Constraint("Vertical", 17, 3, 19, 3))
sketch3.addConstraint(Sketcher.Constraint("Vertical", 8, 3, 20, 3))
sketch3.addConstraint(Sketcher.Constraint("Vertical", 6, 3, 22, 3))
sketch3.addConstraint(Sketcher.Constraint("Vertical", 32, 3, 33, 3))
sketch3.addConstraint(Sketcher.Constraint("Vertical", 34, 3, 35, 3))
sketch3.addConstraint(Sketcher.Constraint("Radius", 0, 5.0))
sketch3.addConstraint(Sketcher.Constraint("Diameter", 12, 4.1))
sketch3.addConstraint(Sketcher.Constraint("DistanceX", 1, 1, 1, 2, 350.0))
sketch3.addConstraint(Sketcher.Constraint("DistanceX", 27, 2, 27, 1, 250.0))
sketch3.addConstraint(Sketcher.Constraint("DistanceY", 25, 2, 25, 1, 20.0))
sketch3.addConstraint(Sketcher.Constraint("DistanceX", -1, 1, 0, 3, 415.0))
sketch3.addConstraint(Sketcher.Constraint("DistanceY", -1, 1, 6, 3, 214.999999))
sketch3.addConstraint(Sketcher.Constraint("DistanceX", -1, 1, 12, 3, 420.0))
sketch3.addConstraint(Sketcher.Constraint("DistanceY", -1, 1, 12, 3, 10.0))
sketch3.addConstraint(Sketcher.Constraint("DistanceX", -1, 1, 13, 3, 450.0))
sketch3.addConstraint(Sketcher.Constraint("DistanceY", -1, 1, 14, 3, 40.0))
sketch3.addConstraint(Sketcher.Constraint("DistanceX", -1, 1, 16, 3, 730.0))
sketch3.addConstraint(Sketcher.Constraint("DistanceX", -1, 1, 17, 3, 760.0))
sketch3.addConstraint(Sketcher.Constraint("DistanceY", -1, 1, 20, 3, 164.999999))
sketch3.addConstraint(Sketcher.Constraint("DistanceY", -1, 1, 24, 3, 50.000001))
sketch3.addConstraint(Sketcher.Constraint("DistanceX", -1, 1, 32, 3, 575.0))
sketch3.addConstraint(Sketcher.Constraint("DistanceY", -1, 1, 32, 3, 180.0))
sketch3.addConstraint(Sketcher.Constraint("DistanceY", -1, 1, 33, 3, 210.0))
sketch3.addConstraint(Sketcher.Constraint("DistanceX", -1, 1, 34, 3, 605.0))
sketch3.addConstraint(Sketcher.Constraint("Radius", 4, 4.999997))
sketch3.addConstraint(Sketcher.Constraint("Radius", 24, 12.488686))
sketch3.addConstraint(Sketcher.Constraint("DistanceX", -1, 1, 5, 2, 616.487299))
pad3 = body3.newObject("PartDesign::Pad", "Pad002")
pad3.Profile = sketch3
pad3.Length = 3
body4 = doc.addObject("PartDesign::Body", "Body003")
body4.AllowCompound = True

sketch4 = body4.newObject("Sketcher::SketchObject", "Sketch003")
sketch4.AttachmentSupport = (doc.getObject("XY_Plane003"), [""])
sketch4.MapMode = "FlatFace"
add_polygon(sketch4, [(-40, 440), (-40, 0), (-10, 0), (-10, 440)])
add_polygon(sketch4, [(-80, 354), (-80, 0), (-50, 0), (-50, 354)])
sketch4.addConstraint(Sketcher.Constraint("Vertical", 0))
sketch4.addConstraint(Sketcher.Constraint("Horizontal", 1))
sketch4.addConstraint(Sketcher.Constraint("Vertical", 2))
sketch4.addConstraint(Sketcher.Constraint("Horizontal", 3))
sketch4.addConstraint(Sketcher.Constraint("Vertical", 4))
sketch4.addConstraint(Sketcher.Constraint("Horizontal", 5))
sketch4.addConstraint(Sketcher.Constraint("Vertical", 6))
sketch4.addConstraint(Sketcher.Constraint("Horizontal", 7))
sketch4.addConstraint(Sketcher.Constraint("PointOnObject", 0, 2, -1))
sketch4.addConstraint(Sketcher.Constraint("PointOnObject", 4, 2, -1))
sketch4.addConstraint(Sketcher.Constraint("Equal", 3, 5))
sketch4.addConstraint(Sketcher.Constraint("DistanceX", 1, 1, 1, 2, 30.0))
sketch4.addConstraint(Sketcher.Constraint("DistanceY", 0, 2, 0, 1, 440.0))
sketch4.addConstraint(Sketcher.Constraint("DistanceY", 4, 2, 4, 1, 354.0))
sketch4.addConstraint(Sketcher.Constraint("DistanceX", 0, 2, -1, 1, 40.0))
sketch4.addConstraint(Sketcher.Constraint("DistanceX", 4, 2, -1, 1, 80.0))
pad4 = body4.newObject("PartDesign::Pad", "Pad003")
pad4.Profile = sketch4
pad4.Length = 3

doc.recompute()
